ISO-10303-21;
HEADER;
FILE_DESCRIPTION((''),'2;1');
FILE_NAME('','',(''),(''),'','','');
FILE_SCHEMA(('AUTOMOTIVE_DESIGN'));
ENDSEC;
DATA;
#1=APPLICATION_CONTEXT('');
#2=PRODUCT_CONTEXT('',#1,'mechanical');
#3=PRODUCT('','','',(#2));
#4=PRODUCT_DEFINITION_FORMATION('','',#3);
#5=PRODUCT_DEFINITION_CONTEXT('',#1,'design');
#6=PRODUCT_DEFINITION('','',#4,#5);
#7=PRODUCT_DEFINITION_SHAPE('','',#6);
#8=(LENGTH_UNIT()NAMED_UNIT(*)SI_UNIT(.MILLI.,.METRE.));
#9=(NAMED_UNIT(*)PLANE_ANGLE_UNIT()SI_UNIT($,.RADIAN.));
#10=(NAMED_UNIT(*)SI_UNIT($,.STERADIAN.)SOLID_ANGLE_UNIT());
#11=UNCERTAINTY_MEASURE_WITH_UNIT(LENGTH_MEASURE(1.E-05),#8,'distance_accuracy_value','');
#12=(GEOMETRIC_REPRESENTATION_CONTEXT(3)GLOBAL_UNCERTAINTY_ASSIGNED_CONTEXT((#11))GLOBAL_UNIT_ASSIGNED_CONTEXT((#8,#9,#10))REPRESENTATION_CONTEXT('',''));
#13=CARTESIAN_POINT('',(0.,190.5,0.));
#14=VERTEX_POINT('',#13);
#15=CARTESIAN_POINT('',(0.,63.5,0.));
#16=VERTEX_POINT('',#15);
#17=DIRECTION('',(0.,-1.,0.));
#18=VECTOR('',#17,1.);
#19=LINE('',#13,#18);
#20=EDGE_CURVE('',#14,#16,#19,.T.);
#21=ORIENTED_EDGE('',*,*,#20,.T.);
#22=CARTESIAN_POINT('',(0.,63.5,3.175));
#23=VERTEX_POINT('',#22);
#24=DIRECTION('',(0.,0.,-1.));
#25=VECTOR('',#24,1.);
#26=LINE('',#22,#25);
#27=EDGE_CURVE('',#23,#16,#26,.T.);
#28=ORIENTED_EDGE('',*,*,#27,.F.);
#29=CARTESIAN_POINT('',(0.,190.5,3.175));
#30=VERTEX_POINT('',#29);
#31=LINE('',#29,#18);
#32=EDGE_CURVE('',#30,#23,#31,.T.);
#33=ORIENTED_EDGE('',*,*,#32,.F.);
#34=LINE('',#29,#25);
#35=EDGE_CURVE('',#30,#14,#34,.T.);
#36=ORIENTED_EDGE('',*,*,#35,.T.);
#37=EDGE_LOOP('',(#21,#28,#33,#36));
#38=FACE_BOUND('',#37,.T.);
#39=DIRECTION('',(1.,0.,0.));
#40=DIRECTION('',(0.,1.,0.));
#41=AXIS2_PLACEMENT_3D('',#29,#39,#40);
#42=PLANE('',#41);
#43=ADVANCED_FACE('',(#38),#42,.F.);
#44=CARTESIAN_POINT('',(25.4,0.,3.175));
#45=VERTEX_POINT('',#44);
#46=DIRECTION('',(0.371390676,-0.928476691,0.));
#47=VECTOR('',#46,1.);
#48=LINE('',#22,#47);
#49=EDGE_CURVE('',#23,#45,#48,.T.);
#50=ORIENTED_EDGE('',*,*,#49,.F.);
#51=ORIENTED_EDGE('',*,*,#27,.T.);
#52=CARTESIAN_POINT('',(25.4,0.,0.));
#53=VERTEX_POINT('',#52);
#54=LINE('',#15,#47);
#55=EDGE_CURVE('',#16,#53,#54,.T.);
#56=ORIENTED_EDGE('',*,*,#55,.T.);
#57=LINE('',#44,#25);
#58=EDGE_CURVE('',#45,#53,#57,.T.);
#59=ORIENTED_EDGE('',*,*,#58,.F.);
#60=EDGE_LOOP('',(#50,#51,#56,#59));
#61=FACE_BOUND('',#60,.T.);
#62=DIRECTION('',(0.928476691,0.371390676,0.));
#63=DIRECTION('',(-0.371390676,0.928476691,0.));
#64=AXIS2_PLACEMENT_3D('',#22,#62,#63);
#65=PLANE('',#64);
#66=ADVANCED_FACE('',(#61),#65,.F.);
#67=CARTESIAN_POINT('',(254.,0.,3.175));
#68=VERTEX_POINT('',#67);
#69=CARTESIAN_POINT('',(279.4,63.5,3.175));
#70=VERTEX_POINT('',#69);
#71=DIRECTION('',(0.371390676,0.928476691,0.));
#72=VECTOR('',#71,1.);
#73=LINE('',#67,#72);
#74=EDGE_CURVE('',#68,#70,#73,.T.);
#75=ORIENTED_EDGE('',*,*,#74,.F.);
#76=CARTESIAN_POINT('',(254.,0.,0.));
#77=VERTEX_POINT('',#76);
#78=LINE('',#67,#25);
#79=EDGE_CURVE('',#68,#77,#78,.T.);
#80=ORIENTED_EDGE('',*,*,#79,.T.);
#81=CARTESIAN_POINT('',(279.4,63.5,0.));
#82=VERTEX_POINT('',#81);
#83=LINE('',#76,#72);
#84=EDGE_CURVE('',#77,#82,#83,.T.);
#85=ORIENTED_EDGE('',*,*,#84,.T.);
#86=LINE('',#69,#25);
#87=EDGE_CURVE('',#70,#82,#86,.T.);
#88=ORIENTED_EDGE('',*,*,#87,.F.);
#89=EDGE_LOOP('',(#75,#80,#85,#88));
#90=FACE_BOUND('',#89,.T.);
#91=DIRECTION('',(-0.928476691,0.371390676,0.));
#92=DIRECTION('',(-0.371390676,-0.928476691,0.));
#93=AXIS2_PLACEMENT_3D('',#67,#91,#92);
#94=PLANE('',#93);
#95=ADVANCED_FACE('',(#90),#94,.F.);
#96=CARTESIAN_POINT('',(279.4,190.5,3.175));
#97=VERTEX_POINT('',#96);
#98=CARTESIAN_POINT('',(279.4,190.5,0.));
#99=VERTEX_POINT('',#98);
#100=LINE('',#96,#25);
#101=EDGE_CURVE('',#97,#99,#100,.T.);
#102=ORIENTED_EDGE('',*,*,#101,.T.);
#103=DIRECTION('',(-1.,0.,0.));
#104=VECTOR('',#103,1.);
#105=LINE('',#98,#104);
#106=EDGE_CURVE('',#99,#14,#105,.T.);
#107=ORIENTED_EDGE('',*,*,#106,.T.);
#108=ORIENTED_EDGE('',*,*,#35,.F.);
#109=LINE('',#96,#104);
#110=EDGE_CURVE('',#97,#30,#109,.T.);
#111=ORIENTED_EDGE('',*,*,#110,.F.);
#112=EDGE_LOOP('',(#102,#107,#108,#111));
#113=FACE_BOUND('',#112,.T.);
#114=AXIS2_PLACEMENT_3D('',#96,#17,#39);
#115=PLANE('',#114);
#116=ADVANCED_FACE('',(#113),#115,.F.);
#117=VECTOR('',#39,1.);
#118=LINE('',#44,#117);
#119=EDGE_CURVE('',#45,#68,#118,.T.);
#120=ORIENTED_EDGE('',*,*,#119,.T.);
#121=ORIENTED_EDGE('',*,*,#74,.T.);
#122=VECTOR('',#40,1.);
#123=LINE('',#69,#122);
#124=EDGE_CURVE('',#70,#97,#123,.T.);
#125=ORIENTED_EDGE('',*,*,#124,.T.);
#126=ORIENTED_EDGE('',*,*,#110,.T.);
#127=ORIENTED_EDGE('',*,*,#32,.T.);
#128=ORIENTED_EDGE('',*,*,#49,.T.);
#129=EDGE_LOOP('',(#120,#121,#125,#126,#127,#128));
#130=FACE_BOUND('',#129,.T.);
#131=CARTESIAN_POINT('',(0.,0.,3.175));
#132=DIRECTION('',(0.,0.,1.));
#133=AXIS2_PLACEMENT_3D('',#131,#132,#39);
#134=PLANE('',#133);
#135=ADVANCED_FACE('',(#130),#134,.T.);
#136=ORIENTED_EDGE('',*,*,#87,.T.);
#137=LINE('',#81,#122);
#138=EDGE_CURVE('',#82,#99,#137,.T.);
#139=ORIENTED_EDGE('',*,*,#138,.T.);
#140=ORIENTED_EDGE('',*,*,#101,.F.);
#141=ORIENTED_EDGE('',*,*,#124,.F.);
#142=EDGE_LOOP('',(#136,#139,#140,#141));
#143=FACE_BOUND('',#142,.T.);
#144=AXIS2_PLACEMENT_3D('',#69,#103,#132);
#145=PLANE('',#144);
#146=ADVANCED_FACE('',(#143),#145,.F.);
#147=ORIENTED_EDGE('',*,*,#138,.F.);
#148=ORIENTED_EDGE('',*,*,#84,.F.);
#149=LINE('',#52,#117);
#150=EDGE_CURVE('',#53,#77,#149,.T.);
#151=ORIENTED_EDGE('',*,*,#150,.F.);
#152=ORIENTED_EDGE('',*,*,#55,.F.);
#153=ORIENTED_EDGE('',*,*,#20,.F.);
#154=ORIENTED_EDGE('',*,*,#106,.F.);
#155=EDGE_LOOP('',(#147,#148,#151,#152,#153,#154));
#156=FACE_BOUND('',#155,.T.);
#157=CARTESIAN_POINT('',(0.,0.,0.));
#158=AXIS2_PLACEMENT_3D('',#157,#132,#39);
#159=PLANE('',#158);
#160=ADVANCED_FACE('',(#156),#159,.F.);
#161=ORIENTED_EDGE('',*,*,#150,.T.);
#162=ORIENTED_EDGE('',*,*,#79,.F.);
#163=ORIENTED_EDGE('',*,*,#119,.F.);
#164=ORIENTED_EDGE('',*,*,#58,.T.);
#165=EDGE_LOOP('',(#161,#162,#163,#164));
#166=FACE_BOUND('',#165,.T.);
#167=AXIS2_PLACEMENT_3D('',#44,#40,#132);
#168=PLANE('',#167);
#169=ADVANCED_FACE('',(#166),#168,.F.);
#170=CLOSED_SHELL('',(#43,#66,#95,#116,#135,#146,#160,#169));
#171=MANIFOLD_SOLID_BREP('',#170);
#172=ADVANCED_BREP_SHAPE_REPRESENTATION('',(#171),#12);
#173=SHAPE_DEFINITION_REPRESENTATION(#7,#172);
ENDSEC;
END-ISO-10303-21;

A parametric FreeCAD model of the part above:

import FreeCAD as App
import Part
import Sketcher

V = App.Vector
Q = App.Units.Quantity


def add_polygon(sketch, points):
    """Adds a closed chain of lines whose ends are joined by coincident constraints."""
    first, n = sketch.GeometryCount, len(points)
    for a, b in zip(points, points[1:] + points[:1]):
        sketch.addGeometry(Part.LineSegment(App.Vector(*a, 0), App.Vector(*b, 0)), False)
    for i in range(n):
        sketch.addConstraint(Sketcher.Constraint("Coincident", first + i, 2, first + (i + 1) % n, 1))

doc = App.newDocument("Part")
params = doc.addObject("Spreadsheet::Sheet", "Params")
for row, (alias, value) in enumerate([
    ("sketch1_width", "9 in"),
    ("sketch1_width2", "11 in"),
    ("sketch1_height", "5 in"),
    ("pad1_length", "0.125 in"),
], start=1):
    params.set(f"A{row}", alias)
    params.set(f"B{row}", "=" + value)
    params.setAlias(f"B{row}", alias)

body = doc.addObject("PartDesign::Body", "Body")

# Sketch on XY plane
sketch1 = body.newObject("Sketcher::SketchObject", "Sketch")
sketch1.AttachmentSupport = (doc.getObject("XY_Plane"), [""])
sketch1.MapMode = "FlatFace"
add_polygon(sketch1, [(25.4, 0), (254, 0), (279.4, 63.5), (279.4, 190.5), (0, 190.5), (0, 63.5)])  # lines 0-5
sketch1.addConstraint([
    Sketcher.Constraint("Horizontal", 0),
    Sketcher.Constraint("Vertical", 2),
    Sketcher.Constraint("Horizontal", 3),
    Sketcher.Constraint("Vertical", 4),
    Sketcher.Constraint("PointOnObject", 0, 2, -1),
    Sketcher.Constraint("PointOnObject", 3, 2, -2),
    Sketcher.Constraint("Horizontal", 1, 2, 4, 2),
    Sketcher.Constraint("Equal", 1, 5),
    Sketcher.Constraint("DistanceX", 0, 1, 0, 2, Q("9 in")),
    Sketcher.Constraint("DistanceX", 3, 2, 3, 1, Q("11 in")),
    Sketcher.Constraint("DistanceY", 2, 1, 2, 2, Q("5 in")),
    Sketcher.Constraint("DistanceY", -1, 1, 1, 2, Q("2.5 in")),
])
sketch1.setExpression("Constraints[14]", "Params.sketch1_width")
sketch1.setExpression("Constraints[15]", "Params.sketch1_width2")
sketch1.setExpression("Constraints[16]", "Params.sketch1_height")
pad1 = body.newObject("PartDesign::Pad", "Pad")
pad1.Profile = sketch1
pad1.setExpression("Length", "Params.pad1_length")

doc.recompute()
